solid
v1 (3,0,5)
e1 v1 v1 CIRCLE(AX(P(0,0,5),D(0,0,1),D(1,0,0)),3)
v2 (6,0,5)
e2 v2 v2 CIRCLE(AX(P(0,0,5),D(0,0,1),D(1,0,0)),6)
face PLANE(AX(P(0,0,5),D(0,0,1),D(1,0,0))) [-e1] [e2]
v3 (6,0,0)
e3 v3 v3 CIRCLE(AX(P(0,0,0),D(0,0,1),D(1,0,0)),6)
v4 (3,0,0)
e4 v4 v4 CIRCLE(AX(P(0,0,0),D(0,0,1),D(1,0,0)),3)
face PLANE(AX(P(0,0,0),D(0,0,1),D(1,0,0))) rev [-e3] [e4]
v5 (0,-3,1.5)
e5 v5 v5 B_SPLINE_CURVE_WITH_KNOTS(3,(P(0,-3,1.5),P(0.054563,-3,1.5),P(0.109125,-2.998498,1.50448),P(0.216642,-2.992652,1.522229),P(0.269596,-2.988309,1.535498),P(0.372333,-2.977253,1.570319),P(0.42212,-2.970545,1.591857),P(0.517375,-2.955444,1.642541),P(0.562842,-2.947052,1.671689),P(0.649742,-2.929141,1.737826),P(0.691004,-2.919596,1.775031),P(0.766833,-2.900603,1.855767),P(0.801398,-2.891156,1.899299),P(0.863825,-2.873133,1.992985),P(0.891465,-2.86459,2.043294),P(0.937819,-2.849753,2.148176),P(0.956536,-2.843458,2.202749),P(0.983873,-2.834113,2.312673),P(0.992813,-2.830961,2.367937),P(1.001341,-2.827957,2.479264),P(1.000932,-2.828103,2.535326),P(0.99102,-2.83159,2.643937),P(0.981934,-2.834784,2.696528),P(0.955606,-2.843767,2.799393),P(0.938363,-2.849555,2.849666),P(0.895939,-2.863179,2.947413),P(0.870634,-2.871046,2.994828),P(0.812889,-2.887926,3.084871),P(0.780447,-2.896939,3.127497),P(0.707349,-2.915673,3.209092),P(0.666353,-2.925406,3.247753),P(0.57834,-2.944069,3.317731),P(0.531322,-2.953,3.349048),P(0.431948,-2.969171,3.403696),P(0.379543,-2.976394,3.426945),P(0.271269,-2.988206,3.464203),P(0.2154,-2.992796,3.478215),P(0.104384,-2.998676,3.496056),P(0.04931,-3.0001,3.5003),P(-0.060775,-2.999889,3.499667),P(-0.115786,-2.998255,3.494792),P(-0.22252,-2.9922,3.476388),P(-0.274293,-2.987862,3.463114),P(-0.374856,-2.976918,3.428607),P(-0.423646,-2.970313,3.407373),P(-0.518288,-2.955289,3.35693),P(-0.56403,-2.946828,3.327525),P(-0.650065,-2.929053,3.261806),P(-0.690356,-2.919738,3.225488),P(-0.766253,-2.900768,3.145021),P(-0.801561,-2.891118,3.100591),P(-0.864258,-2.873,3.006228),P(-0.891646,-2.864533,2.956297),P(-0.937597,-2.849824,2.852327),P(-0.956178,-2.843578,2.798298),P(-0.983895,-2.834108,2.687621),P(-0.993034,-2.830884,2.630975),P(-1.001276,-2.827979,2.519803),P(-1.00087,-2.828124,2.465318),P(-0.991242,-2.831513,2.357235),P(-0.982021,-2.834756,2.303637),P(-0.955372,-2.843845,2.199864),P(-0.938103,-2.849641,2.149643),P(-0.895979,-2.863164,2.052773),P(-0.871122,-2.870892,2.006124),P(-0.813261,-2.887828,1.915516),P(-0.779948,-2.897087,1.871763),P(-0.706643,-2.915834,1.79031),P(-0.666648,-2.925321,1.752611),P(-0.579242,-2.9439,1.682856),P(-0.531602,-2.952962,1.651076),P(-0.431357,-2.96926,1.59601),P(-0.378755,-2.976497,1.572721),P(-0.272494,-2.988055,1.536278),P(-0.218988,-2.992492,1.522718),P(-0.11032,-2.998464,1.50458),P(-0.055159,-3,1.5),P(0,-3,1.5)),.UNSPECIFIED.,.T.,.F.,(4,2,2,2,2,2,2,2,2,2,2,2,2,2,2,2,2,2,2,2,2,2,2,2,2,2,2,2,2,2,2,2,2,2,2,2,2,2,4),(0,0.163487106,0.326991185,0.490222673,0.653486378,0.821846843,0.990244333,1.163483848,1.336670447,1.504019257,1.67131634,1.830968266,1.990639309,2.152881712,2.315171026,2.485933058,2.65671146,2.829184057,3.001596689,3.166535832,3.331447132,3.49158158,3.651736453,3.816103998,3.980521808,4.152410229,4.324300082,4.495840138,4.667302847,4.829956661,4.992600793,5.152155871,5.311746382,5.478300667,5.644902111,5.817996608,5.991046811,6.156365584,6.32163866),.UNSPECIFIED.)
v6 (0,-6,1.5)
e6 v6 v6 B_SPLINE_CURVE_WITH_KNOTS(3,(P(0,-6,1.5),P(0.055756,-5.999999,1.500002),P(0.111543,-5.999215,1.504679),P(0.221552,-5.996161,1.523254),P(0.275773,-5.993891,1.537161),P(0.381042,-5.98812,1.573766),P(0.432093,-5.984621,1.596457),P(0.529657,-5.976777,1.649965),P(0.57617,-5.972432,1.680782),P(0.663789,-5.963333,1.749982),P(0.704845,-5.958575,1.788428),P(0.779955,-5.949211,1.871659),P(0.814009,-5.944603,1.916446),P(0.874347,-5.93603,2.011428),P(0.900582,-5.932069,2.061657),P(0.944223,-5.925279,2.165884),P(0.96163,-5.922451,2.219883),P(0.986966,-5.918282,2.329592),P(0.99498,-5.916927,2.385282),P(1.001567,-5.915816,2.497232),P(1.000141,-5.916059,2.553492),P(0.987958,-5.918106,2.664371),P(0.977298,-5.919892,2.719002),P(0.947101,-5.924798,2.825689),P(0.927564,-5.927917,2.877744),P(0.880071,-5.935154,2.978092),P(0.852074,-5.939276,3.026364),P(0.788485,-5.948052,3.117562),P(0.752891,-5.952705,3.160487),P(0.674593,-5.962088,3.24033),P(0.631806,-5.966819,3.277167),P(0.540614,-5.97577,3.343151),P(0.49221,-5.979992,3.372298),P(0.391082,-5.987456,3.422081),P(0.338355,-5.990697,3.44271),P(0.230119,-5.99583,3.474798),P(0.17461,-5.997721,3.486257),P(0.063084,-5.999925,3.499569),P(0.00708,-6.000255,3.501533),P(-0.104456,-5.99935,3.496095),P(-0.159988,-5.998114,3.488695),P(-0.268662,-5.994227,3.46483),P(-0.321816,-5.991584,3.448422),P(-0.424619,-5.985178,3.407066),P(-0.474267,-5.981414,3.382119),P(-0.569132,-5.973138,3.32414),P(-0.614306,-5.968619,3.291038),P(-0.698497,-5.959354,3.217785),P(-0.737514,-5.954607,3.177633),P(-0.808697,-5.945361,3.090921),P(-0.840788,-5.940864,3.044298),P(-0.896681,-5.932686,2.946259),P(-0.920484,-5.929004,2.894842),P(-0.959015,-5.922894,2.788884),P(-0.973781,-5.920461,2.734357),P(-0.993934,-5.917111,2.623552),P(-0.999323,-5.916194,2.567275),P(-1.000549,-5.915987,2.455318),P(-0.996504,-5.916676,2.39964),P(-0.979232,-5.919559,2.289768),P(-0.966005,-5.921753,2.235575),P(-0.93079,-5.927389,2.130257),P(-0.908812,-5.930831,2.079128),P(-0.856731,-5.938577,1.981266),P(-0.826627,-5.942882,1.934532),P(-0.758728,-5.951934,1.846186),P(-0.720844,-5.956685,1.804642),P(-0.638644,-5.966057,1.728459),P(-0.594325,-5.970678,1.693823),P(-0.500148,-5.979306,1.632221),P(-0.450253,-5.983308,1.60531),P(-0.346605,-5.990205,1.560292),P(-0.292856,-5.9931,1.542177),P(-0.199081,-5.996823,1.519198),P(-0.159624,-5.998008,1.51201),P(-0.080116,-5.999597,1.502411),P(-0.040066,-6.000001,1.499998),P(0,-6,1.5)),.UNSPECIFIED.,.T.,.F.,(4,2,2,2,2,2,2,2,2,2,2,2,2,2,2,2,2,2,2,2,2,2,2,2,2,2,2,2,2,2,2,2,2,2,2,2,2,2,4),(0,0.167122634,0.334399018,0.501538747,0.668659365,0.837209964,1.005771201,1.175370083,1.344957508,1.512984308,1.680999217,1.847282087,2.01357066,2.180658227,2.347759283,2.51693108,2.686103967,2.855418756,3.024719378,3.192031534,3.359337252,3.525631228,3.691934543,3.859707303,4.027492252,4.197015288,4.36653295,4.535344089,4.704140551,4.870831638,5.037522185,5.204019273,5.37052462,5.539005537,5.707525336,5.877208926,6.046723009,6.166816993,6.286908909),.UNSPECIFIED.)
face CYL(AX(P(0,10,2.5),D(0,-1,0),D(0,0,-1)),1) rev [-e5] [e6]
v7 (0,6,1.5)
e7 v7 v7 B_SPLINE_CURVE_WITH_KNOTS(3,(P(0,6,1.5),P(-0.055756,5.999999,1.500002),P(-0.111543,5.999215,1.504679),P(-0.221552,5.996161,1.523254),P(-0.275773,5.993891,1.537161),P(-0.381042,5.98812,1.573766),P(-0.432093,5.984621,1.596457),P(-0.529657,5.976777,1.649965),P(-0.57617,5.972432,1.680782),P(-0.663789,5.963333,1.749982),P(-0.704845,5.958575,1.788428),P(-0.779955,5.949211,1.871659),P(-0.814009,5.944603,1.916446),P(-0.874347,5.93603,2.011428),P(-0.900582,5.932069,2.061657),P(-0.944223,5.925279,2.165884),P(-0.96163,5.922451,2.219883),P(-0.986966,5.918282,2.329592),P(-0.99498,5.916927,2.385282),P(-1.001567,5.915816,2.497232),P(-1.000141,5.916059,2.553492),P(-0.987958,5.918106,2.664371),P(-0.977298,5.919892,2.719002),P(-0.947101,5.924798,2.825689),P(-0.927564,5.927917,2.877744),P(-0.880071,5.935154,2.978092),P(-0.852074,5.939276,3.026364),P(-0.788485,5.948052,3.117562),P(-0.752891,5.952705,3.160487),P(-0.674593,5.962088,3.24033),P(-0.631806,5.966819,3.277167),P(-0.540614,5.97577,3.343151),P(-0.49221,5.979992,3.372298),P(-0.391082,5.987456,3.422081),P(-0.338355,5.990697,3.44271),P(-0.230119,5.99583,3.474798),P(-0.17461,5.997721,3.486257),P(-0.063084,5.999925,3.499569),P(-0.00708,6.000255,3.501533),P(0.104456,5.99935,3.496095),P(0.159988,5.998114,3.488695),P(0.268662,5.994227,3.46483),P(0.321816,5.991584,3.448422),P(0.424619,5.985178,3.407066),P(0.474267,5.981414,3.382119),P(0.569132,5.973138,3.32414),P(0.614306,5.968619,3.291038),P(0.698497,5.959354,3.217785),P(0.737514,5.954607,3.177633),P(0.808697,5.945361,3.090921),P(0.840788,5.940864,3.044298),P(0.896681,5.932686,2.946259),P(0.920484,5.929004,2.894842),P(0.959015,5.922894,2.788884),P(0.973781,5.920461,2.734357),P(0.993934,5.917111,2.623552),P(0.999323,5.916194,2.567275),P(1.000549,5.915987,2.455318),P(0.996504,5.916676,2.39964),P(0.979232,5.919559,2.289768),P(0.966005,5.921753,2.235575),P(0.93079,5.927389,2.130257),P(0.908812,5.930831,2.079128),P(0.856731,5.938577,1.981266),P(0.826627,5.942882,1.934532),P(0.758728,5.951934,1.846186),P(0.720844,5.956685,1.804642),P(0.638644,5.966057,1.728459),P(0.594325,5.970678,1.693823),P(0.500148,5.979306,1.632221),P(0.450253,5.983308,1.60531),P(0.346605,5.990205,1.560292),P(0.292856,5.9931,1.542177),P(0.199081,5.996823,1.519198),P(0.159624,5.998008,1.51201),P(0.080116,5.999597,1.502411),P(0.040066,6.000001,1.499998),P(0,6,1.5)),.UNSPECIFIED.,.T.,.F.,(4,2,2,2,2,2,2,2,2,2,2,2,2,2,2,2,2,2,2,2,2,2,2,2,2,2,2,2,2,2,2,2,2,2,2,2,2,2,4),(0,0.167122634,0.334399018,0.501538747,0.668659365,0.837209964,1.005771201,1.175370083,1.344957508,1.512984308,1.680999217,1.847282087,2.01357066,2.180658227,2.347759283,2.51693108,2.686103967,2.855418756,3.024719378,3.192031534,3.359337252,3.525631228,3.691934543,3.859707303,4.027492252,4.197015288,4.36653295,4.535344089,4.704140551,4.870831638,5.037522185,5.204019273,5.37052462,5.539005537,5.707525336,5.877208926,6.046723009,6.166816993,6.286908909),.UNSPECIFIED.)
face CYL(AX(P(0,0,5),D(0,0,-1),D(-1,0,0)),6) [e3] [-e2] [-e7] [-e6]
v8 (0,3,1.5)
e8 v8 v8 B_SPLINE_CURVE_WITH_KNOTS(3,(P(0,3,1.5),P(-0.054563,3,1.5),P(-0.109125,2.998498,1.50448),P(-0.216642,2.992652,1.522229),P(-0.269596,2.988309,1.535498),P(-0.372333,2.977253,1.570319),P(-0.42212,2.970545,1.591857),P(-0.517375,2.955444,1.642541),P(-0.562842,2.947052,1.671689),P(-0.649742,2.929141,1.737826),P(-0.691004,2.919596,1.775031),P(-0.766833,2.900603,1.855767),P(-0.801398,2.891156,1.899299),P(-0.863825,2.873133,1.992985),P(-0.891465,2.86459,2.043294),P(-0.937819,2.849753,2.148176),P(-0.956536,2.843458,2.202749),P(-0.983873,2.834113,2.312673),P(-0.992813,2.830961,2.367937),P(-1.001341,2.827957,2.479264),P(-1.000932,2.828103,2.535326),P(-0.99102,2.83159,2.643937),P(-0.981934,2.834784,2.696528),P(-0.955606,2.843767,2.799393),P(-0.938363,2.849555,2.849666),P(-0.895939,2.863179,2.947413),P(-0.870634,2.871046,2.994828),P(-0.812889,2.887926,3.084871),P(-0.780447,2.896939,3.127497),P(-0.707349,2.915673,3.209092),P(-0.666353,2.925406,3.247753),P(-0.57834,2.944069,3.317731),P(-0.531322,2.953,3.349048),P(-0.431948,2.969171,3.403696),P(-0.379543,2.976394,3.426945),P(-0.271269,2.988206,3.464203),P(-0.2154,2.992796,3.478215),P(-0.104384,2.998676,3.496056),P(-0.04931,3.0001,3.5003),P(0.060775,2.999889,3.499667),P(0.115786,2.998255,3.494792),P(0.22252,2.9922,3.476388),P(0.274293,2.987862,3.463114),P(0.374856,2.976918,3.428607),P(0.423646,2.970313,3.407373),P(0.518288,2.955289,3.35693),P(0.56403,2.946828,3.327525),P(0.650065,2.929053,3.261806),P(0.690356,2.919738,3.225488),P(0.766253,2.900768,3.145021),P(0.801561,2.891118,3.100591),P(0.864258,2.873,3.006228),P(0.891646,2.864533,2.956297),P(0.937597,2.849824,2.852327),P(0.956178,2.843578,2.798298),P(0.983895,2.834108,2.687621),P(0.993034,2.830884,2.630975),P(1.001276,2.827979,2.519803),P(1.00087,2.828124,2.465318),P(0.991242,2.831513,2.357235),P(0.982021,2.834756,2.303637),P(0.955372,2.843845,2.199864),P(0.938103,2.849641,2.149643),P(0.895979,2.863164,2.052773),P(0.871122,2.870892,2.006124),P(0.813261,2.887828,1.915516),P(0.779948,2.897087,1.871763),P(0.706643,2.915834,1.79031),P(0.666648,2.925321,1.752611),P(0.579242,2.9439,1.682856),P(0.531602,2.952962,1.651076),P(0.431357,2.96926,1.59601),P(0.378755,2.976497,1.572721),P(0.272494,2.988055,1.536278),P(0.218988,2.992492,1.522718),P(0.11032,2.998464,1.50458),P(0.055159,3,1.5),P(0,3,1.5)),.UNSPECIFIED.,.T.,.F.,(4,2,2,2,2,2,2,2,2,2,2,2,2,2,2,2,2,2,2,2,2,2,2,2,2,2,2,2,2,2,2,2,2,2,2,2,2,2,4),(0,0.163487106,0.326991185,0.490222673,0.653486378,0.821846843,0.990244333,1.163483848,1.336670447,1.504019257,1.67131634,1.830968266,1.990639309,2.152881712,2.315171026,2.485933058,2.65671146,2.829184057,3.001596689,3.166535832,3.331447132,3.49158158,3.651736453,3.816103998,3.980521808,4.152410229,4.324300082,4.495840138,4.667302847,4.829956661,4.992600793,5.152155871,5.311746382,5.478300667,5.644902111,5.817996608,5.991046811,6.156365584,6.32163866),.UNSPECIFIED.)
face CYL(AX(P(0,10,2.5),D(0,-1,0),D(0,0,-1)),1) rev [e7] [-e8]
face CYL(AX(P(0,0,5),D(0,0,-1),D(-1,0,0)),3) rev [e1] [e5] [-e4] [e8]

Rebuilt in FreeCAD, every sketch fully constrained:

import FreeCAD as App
import Part
import Sketcher

V = App.Vector

doc = App.newDocument("Part")
body = doc.addObject("PartDesign::Body", "Body")

sketch1 = body.newObject("Sketcher::SketchObject", "Sketch")
sketch1.AttachmentSupport = (doc.getObject("XY_Plane"), [""])
sketch1.MapMode = "FlatFace"
sketch1.addGeometry([
    Part.Circle(V(0, 0, 0), V(0, 0, 1), 6),
    Part.Circle(V(0, 0, 0), V(0, 0, 1), 3),
], False)
sketch1.addConstraint([
    Sketcher.Constraint("Coincident", 0, 3, -1, 1),
    Sketcher.Constraint("Coincident", 1, 3, -1, 1),
    Sketcher.Constraint("Diameter", 0, 12.0),
    Sketcher.Constraint("Diameter", 1, 6.0),
])
pad1 = body.newObject("PartDesign::Pad", "Pad")
pad1.Profile = sketch1
pad1.Length = 5

sketch2 = body.newObject("Sketcher::SketchObject", "Sketch001")
sketch2.AttachmentSupport = (doc.getObject("XZ_Plane"), [""])
sketch2.MapMode = "FlatFace"
sketch2.addGeometry(Part.Circle(V(0, 2.5, 0), V(0, 0, 1), 1), False)
sketch2.addConstraint([
    Sketcher.Constraint("PointOnObject", 0, 3, -2),
    Sketcher.Constraint("Diameter", 0, 2.0),
    Sketcher.Constraint("DistanceY", -1, 1, 0, 3, 2.5),
])
pocket1 = body.newObject("PartDesign::Pocket", "Pocket")
pocket1.Profile = sketch2
pocket1.Type = "ThroughAll"
pocket1.Midplane = True

doc.recompute()
